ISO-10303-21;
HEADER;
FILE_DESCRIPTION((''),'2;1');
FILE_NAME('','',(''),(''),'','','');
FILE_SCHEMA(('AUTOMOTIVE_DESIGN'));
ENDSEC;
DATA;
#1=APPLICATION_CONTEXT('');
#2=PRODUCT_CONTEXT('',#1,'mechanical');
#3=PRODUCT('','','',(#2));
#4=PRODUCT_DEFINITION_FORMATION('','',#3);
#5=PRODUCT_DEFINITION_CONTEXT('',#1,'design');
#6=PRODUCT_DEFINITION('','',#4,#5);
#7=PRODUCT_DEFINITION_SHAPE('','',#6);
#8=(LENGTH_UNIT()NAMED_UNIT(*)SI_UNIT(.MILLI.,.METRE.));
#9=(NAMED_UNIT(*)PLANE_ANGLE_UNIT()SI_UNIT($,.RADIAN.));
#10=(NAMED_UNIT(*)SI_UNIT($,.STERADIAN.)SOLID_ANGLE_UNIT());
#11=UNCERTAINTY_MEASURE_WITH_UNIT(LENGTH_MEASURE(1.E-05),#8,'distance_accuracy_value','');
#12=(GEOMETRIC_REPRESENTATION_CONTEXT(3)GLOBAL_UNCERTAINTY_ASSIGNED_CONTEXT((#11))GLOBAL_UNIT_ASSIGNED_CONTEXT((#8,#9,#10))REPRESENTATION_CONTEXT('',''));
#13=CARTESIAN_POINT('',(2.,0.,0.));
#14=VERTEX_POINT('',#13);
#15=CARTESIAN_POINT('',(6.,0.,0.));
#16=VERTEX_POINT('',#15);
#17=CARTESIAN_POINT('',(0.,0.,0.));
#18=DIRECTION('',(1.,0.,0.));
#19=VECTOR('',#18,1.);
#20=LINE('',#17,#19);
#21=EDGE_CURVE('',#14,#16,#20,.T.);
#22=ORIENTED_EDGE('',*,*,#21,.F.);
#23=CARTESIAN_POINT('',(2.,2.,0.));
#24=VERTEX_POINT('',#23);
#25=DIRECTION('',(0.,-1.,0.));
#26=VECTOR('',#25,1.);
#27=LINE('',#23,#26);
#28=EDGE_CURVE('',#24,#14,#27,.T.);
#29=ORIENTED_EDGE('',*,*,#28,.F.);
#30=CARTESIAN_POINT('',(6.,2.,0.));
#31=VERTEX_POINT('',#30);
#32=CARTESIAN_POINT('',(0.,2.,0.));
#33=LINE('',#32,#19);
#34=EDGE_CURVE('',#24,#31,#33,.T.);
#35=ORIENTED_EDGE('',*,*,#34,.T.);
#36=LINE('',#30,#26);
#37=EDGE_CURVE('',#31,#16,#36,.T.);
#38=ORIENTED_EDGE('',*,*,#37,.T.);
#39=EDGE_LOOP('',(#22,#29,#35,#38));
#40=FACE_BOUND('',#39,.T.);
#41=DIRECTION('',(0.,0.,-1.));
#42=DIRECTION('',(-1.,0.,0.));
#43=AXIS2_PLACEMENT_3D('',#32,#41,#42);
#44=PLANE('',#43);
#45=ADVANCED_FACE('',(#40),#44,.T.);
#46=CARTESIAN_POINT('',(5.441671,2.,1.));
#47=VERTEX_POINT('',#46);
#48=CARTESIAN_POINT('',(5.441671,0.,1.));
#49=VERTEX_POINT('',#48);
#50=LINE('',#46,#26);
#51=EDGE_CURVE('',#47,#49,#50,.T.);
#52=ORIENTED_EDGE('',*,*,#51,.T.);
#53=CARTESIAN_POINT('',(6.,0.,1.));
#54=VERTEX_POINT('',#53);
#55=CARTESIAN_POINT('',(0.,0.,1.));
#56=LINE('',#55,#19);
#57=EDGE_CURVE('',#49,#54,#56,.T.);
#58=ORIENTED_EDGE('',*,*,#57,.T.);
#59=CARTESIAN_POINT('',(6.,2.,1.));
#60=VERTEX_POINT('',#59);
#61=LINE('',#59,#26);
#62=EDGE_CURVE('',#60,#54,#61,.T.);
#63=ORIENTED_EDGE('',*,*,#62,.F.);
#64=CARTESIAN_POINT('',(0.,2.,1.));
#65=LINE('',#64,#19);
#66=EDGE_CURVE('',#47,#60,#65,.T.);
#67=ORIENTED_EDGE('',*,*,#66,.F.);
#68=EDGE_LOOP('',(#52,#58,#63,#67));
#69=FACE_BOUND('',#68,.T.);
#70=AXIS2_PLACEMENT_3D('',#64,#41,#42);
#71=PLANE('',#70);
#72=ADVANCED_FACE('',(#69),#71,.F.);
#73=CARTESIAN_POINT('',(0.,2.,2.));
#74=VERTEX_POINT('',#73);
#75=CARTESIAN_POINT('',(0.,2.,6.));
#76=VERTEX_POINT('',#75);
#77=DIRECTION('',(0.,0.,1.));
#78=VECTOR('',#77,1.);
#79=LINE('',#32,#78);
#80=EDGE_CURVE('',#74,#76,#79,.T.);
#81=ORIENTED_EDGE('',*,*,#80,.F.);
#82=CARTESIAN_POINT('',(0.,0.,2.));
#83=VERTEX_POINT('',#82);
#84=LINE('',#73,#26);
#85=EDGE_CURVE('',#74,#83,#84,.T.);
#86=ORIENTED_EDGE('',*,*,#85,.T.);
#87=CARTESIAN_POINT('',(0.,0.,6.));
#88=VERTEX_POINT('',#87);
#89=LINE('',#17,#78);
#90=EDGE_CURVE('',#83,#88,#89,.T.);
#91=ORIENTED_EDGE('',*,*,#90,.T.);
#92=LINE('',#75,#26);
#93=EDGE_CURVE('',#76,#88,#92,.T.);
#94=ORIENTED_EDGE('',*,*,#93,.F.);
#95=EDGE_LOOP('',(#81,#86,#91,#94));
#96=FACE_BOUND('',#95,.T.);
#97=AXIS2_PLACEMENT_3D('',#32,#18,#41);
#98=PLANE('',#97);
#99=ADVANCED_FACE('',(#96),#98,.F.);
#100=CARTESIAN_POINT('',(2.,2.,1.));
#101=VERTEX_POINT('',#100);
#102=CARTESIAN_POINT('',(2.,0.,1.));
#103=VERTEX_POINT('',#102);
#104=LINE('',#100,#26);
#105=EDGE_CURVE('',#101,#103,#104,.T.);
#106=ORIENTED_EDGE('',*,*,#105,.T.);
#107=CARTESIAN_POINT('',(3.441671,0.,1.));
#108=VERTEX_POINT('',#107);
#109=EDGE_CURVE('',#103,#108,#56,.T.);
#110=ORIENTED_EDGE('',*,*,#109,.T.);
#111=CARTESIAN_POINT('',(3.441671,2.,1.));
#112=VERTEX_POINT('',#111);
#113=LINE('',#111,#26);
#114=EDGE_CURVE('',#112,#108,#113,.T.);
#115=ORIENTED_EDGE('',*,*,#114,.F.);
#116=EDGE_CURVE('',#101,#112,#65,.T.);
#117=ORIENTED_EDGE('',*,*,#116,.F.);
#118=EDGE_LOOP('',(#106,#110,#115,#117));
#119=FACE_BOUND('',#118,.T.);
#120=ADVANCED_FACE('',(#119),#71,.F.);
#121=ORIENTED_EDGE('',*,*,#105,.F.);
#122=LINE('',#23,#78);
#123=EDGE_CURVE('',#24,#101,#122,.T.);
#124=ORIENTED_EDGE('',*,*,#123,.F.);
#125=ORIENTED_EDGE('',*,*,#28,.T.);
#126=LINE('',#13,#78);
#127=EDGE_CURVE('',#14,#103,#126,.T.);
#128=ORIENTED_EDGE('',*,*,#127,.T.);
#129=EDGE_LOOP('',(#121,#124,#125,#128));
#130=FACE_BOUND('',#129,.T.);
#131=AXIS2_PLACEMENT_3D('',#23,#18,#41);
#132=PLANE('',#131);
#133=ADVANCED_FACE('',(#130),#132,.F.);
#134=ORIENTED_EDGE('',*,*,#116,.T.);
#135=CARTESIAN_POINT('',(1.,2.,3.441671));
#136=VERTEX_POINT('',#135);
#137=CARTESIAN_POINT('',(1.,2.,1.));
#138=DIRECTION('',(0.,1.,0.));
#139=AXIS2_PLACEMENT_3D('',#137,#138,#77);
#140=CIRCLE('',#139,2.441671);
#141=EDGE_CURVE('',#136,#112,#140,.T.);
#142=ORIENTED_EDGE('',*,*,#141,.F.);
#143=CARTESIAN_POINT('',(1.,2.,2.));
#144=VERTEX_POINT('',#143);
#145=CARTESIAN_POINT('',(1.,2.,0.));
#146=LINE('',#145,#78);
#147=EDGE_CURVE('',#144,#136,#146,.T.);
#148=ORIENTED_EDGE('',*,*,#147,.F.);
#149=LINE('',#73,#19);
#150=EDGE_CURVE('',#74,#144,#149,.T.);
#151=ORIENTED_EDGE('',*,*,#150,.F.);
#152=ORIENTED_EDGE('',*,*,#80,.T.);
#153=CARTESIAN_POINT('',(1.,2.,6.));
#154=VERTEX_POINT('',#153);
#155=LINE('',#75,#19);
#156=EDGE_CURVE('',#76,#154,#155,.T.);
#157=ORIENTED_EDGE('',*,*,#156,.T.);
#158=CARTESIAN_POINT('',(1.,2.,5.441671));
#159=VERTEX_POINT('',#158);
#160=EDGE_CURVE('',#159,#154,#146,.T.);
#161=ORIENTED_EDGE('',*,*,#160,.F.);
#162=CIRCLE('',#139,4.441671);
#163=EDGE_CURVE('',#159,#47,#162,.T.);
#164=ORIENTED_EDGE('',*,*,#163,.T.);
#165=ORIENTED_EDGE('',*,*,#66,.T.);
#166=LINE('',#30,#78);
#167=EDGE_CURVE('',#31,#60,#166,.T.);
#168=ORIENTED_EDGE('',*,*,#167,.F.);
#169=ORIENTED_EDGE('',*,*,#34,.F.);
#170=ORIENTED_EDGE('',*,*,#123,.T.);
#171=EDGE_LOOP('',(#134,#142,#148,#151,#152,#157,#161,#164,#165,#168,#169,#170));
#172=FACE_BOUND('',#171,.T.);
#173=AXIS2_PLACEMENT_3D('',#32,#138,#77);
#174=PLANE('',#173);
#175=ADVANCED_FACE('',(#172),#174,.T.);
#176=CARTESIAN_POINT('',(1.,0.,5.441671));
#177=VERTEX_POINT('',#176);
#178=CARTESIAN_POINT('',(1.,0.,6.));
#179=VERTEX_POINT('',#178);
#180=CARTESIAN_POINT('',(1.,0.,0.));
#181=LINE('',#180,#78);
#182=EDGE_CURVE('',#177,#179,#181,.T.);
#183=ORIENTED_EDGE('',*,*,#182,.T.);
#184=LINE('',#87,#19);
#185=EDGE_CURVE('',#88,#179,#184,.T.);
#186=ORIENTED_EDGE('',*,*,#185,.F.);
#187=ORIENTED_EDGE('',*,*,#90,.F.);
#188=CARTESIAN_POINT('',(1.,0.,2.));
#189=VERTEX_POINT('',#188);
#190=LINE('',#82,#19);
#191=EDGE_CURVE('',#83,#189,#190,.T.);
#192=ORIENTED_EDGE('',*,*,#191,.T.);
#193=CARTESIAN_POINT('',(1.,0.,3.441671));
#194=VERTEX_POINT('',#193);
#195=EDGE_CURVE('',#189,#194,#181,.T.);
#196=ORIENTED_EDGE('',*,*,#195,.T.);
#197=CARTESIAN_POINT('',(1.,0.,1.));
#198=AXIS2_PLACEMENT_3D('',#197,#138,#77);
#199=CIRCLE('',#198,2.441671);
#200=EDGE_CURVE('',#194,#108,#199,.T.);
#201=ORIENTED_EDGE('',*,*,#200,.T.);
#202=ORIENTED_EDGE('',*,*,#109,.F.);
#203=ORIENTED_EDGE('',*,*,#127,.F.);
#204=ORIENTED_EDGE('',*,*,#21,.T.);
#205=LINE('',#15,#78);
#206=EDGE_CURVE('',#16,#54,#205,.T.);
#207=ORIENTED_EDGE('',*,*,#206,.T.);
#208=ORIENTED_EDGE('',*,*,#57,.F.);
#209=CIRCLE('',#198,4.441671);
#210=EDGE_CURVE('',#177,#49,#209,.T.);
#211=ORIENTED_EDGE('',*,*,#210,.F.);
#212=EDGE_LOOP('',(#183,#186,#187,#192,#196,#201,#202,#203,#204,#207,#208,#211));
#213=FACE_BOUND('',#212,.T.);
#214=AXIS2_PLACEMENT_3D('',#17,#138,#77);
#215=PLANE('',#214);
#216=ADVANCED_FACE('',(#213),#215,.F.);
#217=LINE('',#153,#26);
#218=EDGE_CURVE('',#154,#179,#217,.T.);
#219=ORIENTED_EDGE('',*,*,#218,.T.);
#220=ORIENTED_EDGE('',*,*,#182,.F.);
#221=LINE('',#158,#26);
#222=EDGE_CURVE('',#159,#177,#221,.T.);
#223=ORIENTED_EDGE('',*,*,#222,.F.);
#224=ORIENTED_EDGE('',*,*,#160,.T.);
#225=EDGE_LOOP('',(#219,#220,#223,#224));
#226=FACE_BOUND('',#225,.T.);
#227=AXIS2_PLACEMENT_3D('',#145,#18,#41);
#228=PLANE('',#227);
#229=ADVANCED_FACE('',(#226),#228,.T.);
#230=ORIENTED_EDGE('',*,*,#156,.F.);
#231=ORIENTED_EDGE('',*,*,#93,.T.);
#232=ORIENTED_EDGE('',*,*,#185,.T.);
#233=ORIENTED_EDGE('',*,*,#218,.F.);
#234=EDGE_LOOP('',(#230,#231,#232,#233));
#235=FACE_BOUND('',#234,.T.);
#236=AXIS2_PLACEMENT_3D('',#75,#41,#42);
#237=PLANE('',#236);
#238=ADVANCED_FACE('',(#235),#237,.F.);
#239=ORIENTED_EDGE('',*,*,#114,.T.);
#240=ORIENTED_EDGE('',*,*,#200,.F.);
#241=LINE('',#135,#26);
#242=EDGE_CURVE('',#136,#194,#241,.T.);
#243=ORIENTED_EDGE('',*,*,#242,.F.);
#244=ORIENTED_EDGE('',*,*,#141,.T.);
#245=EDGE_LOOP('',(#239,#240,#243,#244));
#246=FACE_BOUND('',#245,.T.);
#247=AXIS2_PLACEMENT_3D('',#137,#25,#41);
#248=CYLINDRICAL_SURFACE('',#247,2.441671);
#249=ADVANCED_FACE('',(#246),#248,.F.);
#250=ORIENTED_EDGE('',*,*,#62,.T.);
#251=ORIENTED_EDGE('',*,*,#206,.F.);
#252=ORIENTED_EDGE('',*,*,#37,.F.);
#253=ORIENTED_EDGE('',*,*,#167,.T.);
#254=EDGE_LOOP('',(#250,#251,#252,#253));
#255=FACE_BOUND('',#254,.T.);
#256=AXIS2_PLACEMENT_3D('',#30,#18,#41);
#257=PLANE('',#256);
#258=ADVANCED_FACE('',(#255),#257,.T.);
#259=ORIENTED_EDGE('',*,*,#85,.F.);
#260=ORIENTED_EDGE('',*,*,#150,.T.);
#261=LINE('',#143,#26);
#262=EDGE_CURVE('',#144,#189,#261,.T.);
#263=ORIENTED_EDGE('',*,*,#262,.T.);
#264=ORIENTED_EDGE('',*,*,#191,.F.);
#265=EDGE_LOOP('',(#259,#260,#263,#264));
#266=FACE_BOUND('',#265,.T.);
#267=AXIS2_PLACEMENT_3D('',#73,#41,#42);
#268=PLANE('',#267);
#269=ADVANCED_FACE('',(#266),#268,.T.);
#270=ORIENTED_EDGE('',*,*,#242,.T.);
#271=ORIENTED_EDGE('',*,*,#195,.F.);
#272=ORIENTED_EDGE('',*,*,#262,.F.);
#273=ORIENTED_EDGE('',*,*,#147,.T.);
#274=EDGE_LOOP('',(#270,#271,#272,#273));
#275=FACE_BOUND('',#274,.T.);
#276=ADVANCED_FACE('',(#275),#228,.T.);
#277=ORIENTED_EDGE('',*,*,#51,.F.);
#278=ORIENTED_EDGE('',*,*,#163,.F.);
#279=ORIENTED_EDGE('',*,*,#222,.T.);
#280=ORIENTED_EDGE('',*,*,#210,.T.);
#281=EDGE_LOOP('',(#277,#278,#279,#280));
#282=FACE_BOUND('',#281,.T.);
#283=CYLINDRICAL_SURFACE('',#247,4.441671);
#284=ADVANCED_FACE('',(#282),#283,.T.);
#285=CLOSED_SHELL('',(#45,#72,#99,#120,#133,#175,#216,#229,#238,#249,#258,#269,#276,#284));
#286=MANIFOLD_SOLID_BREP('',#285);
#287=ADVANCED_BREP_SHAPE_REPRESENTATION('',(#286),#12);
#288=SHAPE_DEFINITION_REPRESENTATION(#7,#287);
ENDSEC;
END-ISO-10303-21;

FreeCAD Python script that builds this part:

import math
import FreeCAD as App
import Part
import Sketcher
from FreeCAD import Vector
Q = App.Units.Quantity

doc = App.newDocument("Part")
params = doc.addObject("Spreadsheet::Sheet", "Params")
for row, (alias, value) in enumerate([
    ("sketch1_width", "1 mm"),
    ("sketch1_width2", "4 mm"),
    ("pad1_length", "2 mm"),
], start=1):
    params.set(f"A{row}", alias)
    params.set(f"B{row}", "=" + value)
    params.setAlias(f"B{row}", alias)

body = doc.addObject("PartDesign::Body", "Body")

# Sketch on XZ plane
sketch1 = body.newObject("Sketcher::SketchObject", "Sketch")
sketch1.AttachmentSupport = (doc.getObject("XZ_Plane"), [""])
sketch1.MapMode = "FlatFace"
sketch1.addGeometry(Part.LineSegment(Vector(0, 2, 0), Vector(0, 6, 0)), False)
sketch1.addGeometry(Part.LineSegment(Vector(0, 6, 0), Vector(1, 6, 0)), False)
sketch1.addGeometry(Part.LineSegment(Vector(1, 6, 0), Vector(1, 5.4, 0)), False)
sketch1.addGeometry(Part.ArcOfCircle(Part.Circle(Vector(1, 1, 0), Vector(0, 0, 1), 4.4), math.radians(0), math.radians(90)), False)
sketch1.addGeometry(Part.LineSegment(Vector(5.4, 1, 0), Vector(6, 1, 0)), False)
sketch1.addGeometry(Part.LineSegment(Vector(6, 1, 0), Vector(6, 0, 0)), False)
sketch1.addGeometry(Part.LineSegment(Vector(6, 0, 0), Vector(2, 0, 0)), False)
sketch1.addGeometry(Part.LineSegment(Vector(2, 0, 0), Vector(2, 1, 0)), False)
sketch1.addGeometry(Part.LineSegment(Vector(2, 1, 0), Vector(3.4, 1, 0)), False)
sketch1.addGeometry(Part.ArcOfCircle(Part.Circle(Vector(1, 1, 0), Vector(0, 0, 1), 2.4), math.radians(0), math.radians(90)), False)
sketch1.addGeometry(Part.LineSegment(Vector(1, 3.4, 0), Vector(1, 2, 0)), False)
sketch1.addGeometry(Part.LineSegment(Vector(1, 2, 0), Vector(0, 2, 0)), False)
sketch1.addConstraint(Sketcher.Constraint("Coincident", 0, 2, 1, 1))
sketch1.addConstraint(Sketcher.Constraint("Coincident", 1, 2, 2, 1))
sketch1.addConstraint(Sketcher.Constraint("Coincident", 2, 2, 3, 2))
sketch1.addConstraint(Sketcher.Constraint("Coincident", 3, 1, 4, 1))
sketch1.addConstraint(Sketcher.Constraint("Coincident", 4, 2, 5, 1))
sketch1.addConstraint(Sketcher.Constraint("Coincident", 5, 2, 6, 1))
sketch1.addConstraint(Sketcher.Constraint("Coincident", 6, 2, 7, 1))
sketch1.addConstraint(Sketcher.Constraint("Coincident", 7, 2, 8, 1))
sketch1.addConstraint(Sketcher.Constraint("Coincident", 8, 2, 9, 1))
sketch1.addConstraint(Sketcher.Constraint("Coincident", 9, 2, 10, 1))
sketch1.addConstraint(Sketcher.Constraint("Coincident", 10, 2, 11, 1))
sketch1.addConstraint(Sketcher.Constraint("Coincident", 11, 2, 0, 1))
sketch1.addConstraint(Sketcher.Constraint("Vertical", 0))
sketch1.addConstraint(Sketcher.Constraint("Horizontal", 1))
sketch1.addConstraint(Sketcher.Constraint("Vertical", 2))
sketch1.addConstraint(Sketcher.Constraint("Horizontal", 4))
sketch1.addConstraint(Sketcher.Constraint("Vertical", 5))
sketch1.addConstraint(Sketcher.Constraint("Horizontal", 6))
sketch1.addConstraint(Sketcher.Constraint("Vertical", 7))
sketch1.addConstraint(Sketcher.Constraint("Horizontal", 8))
sketch1.addConstraint(Sketcher.Constraint("Vertical", 10))
sketch1.addConstraint(Sketcher.Constraint("Horizontal", 11))
sketch1.addConstraint(Sketcher.Constraint("Coincident", 9, 3, 3, 3))
sketch1.addConstraint(Sketcher.Constraint("PointOnObject", 0, 2, -2))
sketch1.addConstraint(Sketcher.Constraint("PointOnObject", 5, 2, -1))
sketch1.addConstraint(Sketcher.Constraint("Horizontal", 9, 3, 3, 1))
sketch1.addConstraint(Sketcher.Constraint("Horizontal", 4, 2, 7, 2))
sketch1.addConstraint(Sketcher.Constraint("Vertical", 9, 3, 1, 2))
sketch1.addConstraint(Sketcher.Constraint("Vertical", 2, 2, 9, 2))
sketch1.addConstraint(Sketcher.Constraint("Equal", 6, 0))
sketch1.addConstraint(Sketcher.Constraint("Equal", 4, 2))
sketch1.addConstraint(Sketcher.Constraint("Equal", 11, 5))
sketch1.addConstraint(Sketcher.Constraint("DistanceX", 1, 1, 1, 2, Q("1 mm")))
sketch1.addConstraint(Sketcher.Constraint("DistanceX", 6, 2, 6, 1, Q("4 mm")))
sketch1.addConstraint(Sketcher.Constraint("DistanceY", -1, 1, 0, 2, Q("6 mm")))
sketch1.addConstraint(Sketcher.Constraint("DistanceX", 8, 2, 3, 1, Q("2 mm")))
sketch1.addConstraint(Sketcher.Constraint("Radius", 3, Q("4.441671 mm")))
sketch1.setExpression("Constraints[32]", "Params.sketch1_width")
sketch1.setExpression("Constraints[33]", "Params.sketch1_width2")
pad1 = body.newObject("PartDesign::Pad", "Pad")
pad1.Profile = sketch1
pad1.setExpression("Length", "Params.pad1_length")
pad1.Reversed = True

doc.recompute()
